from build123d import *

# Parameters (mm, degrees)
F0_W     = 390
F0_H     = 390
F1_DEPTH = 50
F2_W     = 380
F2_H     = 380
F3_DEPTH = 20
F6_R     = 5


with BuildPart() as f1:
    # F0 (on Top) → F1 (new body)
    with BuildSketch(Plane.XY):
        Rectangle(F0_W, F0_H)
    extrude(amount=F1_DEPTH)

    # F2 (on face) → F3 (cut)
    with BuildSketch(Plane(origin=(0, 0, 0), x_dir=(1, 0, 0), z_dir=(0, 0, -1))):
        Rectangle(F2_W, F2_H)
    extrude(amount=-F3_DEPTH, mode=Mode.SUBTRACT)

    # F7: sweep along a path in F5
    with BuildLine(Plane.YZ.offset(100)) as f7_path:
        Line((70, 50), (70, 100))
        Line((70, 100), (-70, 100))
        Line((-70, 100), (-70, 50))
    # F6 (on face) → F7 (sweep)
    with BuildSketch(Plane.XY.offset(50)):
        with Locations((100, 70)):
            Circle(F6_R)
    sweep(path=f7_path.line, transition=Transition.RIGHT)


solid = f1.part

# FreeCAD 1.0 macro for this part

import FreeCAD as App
import Part
import Sketcher


def add_polygon(sketch, points):
    """Adds a closed chain of lines whose ends are joined by coincident constraints."""
    first, n = sketch.GeometryCount, len(points)
    for a, b in zip(points, points[1:] + points[:1]):
        sketch.addGeometry(Part.LineSegment(App.Vector(*a, 0), App.Vector(*b, 0)), False)
    for i in range(n):
        sketch.addConstraint(Sketcher.Constraint("Coincident", first + i, 2, first + (i + 1) % n, 1))

doc = App.newDocument("Part")
body = doc.addObject("PartDesign::Body", "Body")

# Sketch on XY plane
sketch1 = doc.addObject("Sketcher::SketchObject", "Sketch")
body.addObject(sketch1)
sketch1.AttachmentSupport = (doc.XY_Plane, [""])
sketch1.MapMode = "FlatFace"
add_polygon(sketch1, [(-195, 195), (-195, -195), (195, -195), (195, 195)])  # lines 0-3
sketch1.addConstraint([
    Sketcher.Constraint("Vertical", 0),
    Sketcher.Constraint("Horizontal", 1),
    Sketcher.Constraint("Vertical", 2),
    Sketcher.Constraint("Horizontal", 3),
    Sketcher.Constraint("Symmetric", 0, 2, 2, 2, -1, 1),
    Sketcher.Constraint("Equal", 3, 0),
    Sketcher.Constraint("DistanceX", 1, 1, 1, 2, 390.0),
])
pad1 = doc.addObject("PartDesign::Pad", "Pad")
body.addObject(pad1)
pad1.Profile = sketch1
pad1.Length = 50

# Sketch on XY plane
sketch2 = doc.addObject("Sketcher::SketchObject", "Sketch001")
body.addObject(sketch2)
sketch2.AttachmentSupport = (doc.XY_Plane, [""])
sketch2.MapMode = "FlatFace"
add_polygon(sketch2, [(-190, -190), (-190, 190), (190, 190), (190, -190)])  # lines 0-3
sketch2.addConstraint([
    Sketcher.Constraint("Vertical", 0),
    Sketcher.Constraint("Horizontal", 1),
    Sketcher.Constraint("Vertical", 2),
    Sketcher.Constraint("Horizontal", 3),
    Sketcher.Constraint("Symmetric", 0, 2, 2, 2, -1, 1),
    Sketcher.Constraint("Equal", 3, 0),
    Sketcher.Constraint("DistanceX", 1, 1, 1, 2, 380.0),
])
pocket1 = doc.addObject("PartDesign::Pocket", "Pocket")
body.addObject(pocket1)
pocket1.Profile = sketch2
pocket1.Length = 20
pocket1.Reversed = True

# Sketch on XY plane
sketch3 = doc.addObject("Sketcher::SketchObject", "Sketch002")
body.addObject(sketch3)
sketch3.AttachmentSupport = (doc.XY_Plane, [""])
sketch3.MapMode = "FlatFace"
sketch3.AttachmentOffset = App.Placement(App.Vector(0, 0, 50), App.Rotation())
sketch3.addGeometry(Part.Circle(App.Vector(100, 70, 0), App.Vector(0, 0, 1), 5), False)
sketch3.addConstraint([
    Sketcher.Constraint("Diameter", 0, 10.0),
    Sketcher.Constraint("DistanceX", -1, 1, 0, 3, 100.0),
    Sketcher.Constraint("DistanceY", -1, 1, 0, 3, 70.0),
])

# Sketch on YZ plane
sketch4 = doc.addObject("Sketcher::SketchObject", "Sketch003")
body.addObject(sketch4)
sketch4.AttachmentSupport = (doc.YZ_Plane, [""])
sketch4.MapMode = "FlatFace"
sketch4.AttachmentOffset = App.Placement(App.Vector(0, 0, 100), App.Rotation())
sketch4.addGeometry([
    Part.LineSegment(App.Vector(70, 50, 0), App.Vector(70, 100, 0)),
    Part.LineSegment(App.Vector(70, 100, 0), App.Vector(-70, 100, 0)),
    Part.LineSegment(App.Vector(-70, 100, 0), App.Vector(-70, 50, 0)),
], False)
sketch4.addConstraint([
    Sketcher.Constraint("Coincident", 0, 2, 1, 1),
    Sketcher.Constraint("Coincident", 1, 2, 2, 1),
    Sketcher.Constraint("Vertical", 0),
    Sketcher.Constraint("Horizontal", 1),
    Sketcher.Constraint("Vertical", 2),
    Sketcher.Constraint("Symmetric", 0, 1, 2, 2, -2),
    Sketcher.Constraint("DistanceX", 1, 2, 1, 1, 140.0),
    Sketcher.Constraint("DistanceY", 0, 1, 0, 2, 50.0),
    Sketcher.Constraint("DistanceY", -1, 1, 0, 1, 50.0),
])
doc.recompute()

additivepipe = doc.addObject("PartDesign::AdditivePipe", "AdditivePipe")
body.addObject(additivepipe)
additivepipe.Profile = sketch3
additivepipe.Spine = (sketch4, ["Edge1", "Edge2", "Edge3"])
additivepipe.Transition = "Right corner"

doc.recompute()
